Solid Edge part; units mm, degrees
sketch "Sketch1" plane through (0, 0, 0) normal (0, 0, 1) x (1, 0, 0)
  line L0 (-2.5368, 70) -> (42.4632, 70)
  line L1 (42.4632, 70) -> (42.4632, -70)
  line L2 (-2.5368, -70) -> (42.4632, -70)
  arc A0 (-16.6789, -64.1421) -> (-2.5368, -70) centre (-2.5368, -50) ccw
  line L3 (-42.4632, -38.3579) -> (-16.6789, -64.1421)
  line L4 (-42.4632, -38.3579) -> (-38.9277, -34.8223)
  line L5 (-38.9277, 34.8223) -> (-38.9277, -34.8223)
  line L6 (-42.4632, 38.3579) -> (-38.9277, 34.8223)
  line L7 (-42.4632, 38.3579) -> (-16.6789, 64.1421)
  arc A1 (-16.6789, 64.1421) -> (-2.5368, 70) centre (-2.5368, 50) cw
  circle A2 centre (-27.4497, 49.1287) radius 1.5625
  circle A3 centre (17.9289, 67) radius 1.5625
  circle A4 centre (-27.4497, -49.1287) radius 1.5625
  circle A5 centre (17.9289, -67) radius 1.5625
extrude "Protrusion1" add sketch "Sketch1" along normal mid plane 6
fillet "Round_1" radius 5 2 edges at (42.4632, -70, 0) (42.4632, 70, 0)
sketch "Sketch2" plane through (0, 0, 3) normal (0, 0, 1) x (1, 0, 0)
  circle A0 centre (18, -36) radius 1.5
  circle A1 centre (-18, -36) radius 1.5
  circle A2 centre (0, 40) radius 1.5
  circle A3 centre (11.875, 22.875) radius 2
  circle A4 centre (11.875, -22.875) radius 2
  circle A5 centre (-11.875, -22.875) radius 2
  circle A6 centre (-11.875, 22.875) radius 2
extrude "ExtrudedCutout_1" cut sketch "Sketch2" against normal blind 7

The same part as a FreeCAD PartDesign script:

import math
import FreeCAD as App
import Part
import Sketcher


def edges_at(feature, points):
    """Names of the edges that pass closest to the given points."""
    edges = feature.Shape.Edges
    near = lambda p: min(range(len(edges)), key=lambda i: edges[i].distToShape(Part.Vertex(*p))[0])
    return sorted({f"Edge{near(p) + 1}" for p in points})

doc = App.newDocument("Part")
params = doc.addObject("Spreadsheet::Sheet", "Params")
for row, (alias, value) in enumerate([
    ("sketch1_radius", "20 mm"),
    ("sketch1_width", "45 mm"),
    ("sketch1_height", "140 mm"),
    ("sketch1_length", "5 mm"),
    ("pad1_length", "6 mm"),
    ("fillet_radius", "5 mm"),
    ("sketch2_diameter", "3 mm"),
    ("sketch2_diameter2", "4 mm"),
    ("pocket1_length", "7 mm"),
], start=1):
    params.set(f"A{row}", alias)
    params.set(f"B{row}", "=" + value)
    params.setAlias(f"B{row}", alias)

body = doc.addObject("PartDesign::Body", "Body")

# Sketch on XY plane
sketch1 = body.newObject("Sketcher::SketchObject", "Sketch")
sketch1.AttachmentSupport = (doc.getObject("XY_Plane"), [""])
sketch1.MapMode = "FlatFace"
sketch1.addGeometry(Part.LineSegment(App.Vector(42.4632, 70, 0), App.Vector(-2.5368, 70, 0)), False)
sketch1.addGeometry(Part.ArcOfCircle(Part.Circle(App.Vector(-2.5368, 50, 0), App.Vector(0, 0, 1), 19.99995), math.radians(90), math.radians(135)), False)
sketch1.addGeometry(Part.LineSegment(App.Vector(-16.6789, 64.1421, 0), App.Vector(-42.4632, 38.3579, 0)), False)
sketch1.addGeometry(Part.LineSegment(App.Vector(-42.4632, 38.3579, 0), App.Vector(-38.9277, 34.8223, 0)), False)
sketch1.addGeometry(Part.LineSegment(App.Vector(-38.9277, 34.8223, 0), App.Vector(-38.9277, -34.8223, 0)), False)
sketch1.addGeometry(Part.LineSegment(App.Vector(-38.9277, -34.8223, 0), App.Vector(-42.4632, -38.3579, 0)), False)
sketch1.addGeometry(Part.LineSegment(App.Vector(-42.4632, -38.3579, 0), App.Vector(-16.6789, -64.1421, 0)), False)
sketch1.addGeometry(Part.ArcOfCircle(Part.Circle(App.Vector(-2.5368, -50, 0), App.Vector(0, 0, 1), 19.99995), math.radians(-135), math.radians(-90)), False)
sketch1.addGeometry(Part.LineSegment(App.Vector(-2.5368, -70, 0), App.Vector(42.4632, -70, 0)), False)
sketch1.addGeometry(Part.LineSegment(App.Vector(42.4632, -70, 0), App.Vector(42.4632, 70, 0)), False)
sketch1.addGeometry(Part.Circle(App.Vector(-27.4497, -49.1287, 0), App.Vector(0, 0, 1), 1.5625), False)
sketch1.addGeometry(Part.Circle(App.Vector(17.9289, -67, 0), App.Vector(0, 0, 1), 1.5625), False)
sketch1.addGeometry(Part.Circle(App.Vector(-27.4497, 49.1287, 0), App.Vector(0, 0, 1), 1.5625), False)
sketch1.addGeometry(Part.Circle(App.Vector(17.9289, 67, 0), App.Vector(0, 0, 1), 1.5625), False)
sketch1.addConstraint(Sketcher.Constraint("Tangent", 0, 2, 1, 1))
sketch1.addConstraint(Sketcher.Constraint("Tangent", 1, 2, 2, 1))
sketch1.addConstraint(Sketcher.Constraint("Coincident", 2, 2, 3, 1))
sketch1.addConstraint(Sketcher.Constraint("Coincident", 3, 2, 4, 1))
sketch1.addConstraint(Sketcher.Constraint("Coincident", 4, 2, 5, 1))
sketch1.addConstraint(Sketcher.Constraint("Coincident", 5, 2, 6, 1))
sketch1.addConstraint(Sketcher.Constraint("Tangent", 6, 2, 7, 1))
sketch1.addConstraint(Sketcher.Constraint("Tangent", 7, 2, 8, 1))
sketch1.addConstraint(Sketcher.Constraint("Coincident", 8, 2, 9, 1))
sketch1.addConstraint(Sketcher.Constraint("Coincident", 9, 2, 0, 1))
sketch1.addConstraint(Sketcher.Constraint("Horizontal", 0))
sketch1.addConstraint(Sketcher.Constraint("Vertical", 4))
sketch1.addConstraint(Sketcher.Constraint("Horizontal", 8))
sketch1.addConstraint(Sketcher.Constraint("Vertical", 9))
sketch1.addConstraint(Sketcher.Constraint("Equal", 1, 7))
sketch1.addConstraint(Sketcher.Constraint("Equal", 10, 11))
sketch1.addConstraint(Sketcher.Constraint("Equal", 11, 12))
sketch1.addConstraint(Sketcher.Constraint("Equal", 12, 13))
sketch1.addConstraint(Sketcher.Constraint("Symmetric", 1, 3, 7, 3, -1))
sketch1.addConstraint(Sketcher.Constraint("Symmetric", 10, 3, 12, 3, -1))
sketch1.addConstraint(Sketcher.Constraint("Symmetric", 11, 3, 13, 3, -1))
sketch1.addConstraint(Sketcher.Constraint("Symmetric", 2, 2, 5, 2, -1))
sketch1.addConstraint(Sketcher.Constraint("Perpendicular", 2, 3))
sketch1.addConstraint(Sketcher.Constraint("Perpendicular", 3, 5))
sketch1.addConstraint(Sketcher.Constraint("Perpendicular", 5, 6))
sketch1.addConstraint(Sketcher.Constraint("Radius", 1, 20.0))
sketch1.addConstraint(Sketcher.Constraint("DistanceX", 0, 2, 0, 1, 45.0))
sketch1.addConstraint(Sketcher.Constraint("DistanceY", 9, 1, 9, 2, 140.0))
sketch1.addConstraint(Sketcher.Constraint("Distance", 3, 5.0))
sketch1.addConstraint(Sketcher.Constraint("Diameter", 10, 3.125))
sketch1.addConstraint(Sketcher.Constraint("DistanceY", 11, 3, -1, 1, 67.0))
sketch1.addConstraint(Sketcher.Constraint("DistanceY", 4, 2, 4, 1, 69.6446))
sketch1.addConstraint(Sketcher.Constraint("DistanceX", -1, 1, 11, 3, 17.929))
sketch1.addConstraint(Sketcher.Constraint("DistanceX", 1, 2, -1, 1, 16.679))
sketch1.addConstraint(Sketcher.Constraint("DistanceX", 10, 3, 7, 3, 24.913))
sketch1.addConstraint(Sketcher.Constraint("DistanceY", 10, 3, -1, 1, 49.1287))
sketch1.setExpression("Constraints[25]", "Params.sketch1_radius")
sketch1.setExpression("Constraints[26]", "Params.sketch1_width")
sketch1.setExpression("Constraints[27]", "Params.sketch1_height")
sketch1.setExpression("Constraints[28]", "Params.sketch1_length")
pad1 = body.newObject("PartDesign::Pad", "Pad")
pad1.Profile = sketch1
pad1.setExpression("Length", "Params.pad1_length")
pad1.Midplane = True
doc.recompute()

fillet = body.newObject("PartDesign::Fillet", "Fillet")
fillet.Base = (pad1, edges_at(pad1, [(42.463, -70, 0), (42.463, 70, 0)]))
fillet.setExpression("Radius", "Params.fillet_radius")

# Sketch on XY plane
sketch2 = body.newObject("Sketcher::SketchObject", "Sketch001")
sketch2.AttachmentSupport = (doc.getObject("XY_Plane"), [""])
sketch2.MapMode = "FlatFace"
sketch2.AttachmentOffset = App.Placement(App.Vector(0, 0, 3), App.Rotation())
sketch2.addGeometry(Part.Circle(App.Vector(18, -36, 0), App.Vector(0, 0, 1), 1.5), False)
sketch2.addGeometry(Part.Circle(App.Vector(-18, -36, 0), App.Vector(0, 0, 1), 1.5), False)
sketch2.addGeometry(Part.Circle(App.Vector(0, 40, 0), App.Vector(0, 0, 1), 1.5), False)
sketch2.addGeometry(Part.Circle(App.Vector(11.875, 22.875, 0), App.Vector(0, 0, 1), 2), False)
sketch2.addGeometry(Part.Circle(App.Vector(11.875, -22.875, 0), App.Vector(0, 0, 1), 2), False)
sketch2.addGeometry(Part.Circle(App.Vector(-11.875, -22.875, 0), App.Vector(0, 0, 1), 2), False)
sketch2.addGeometry(Part.Circle(App.Vector(-11.875, 22.875, 0), App.Vector(0, 0, 1), 2), False)
sketch2.addConstraint(Sketcher.Constraint("Equal", 0, 1))
sketch2.addConstraint(Sketcher.Constraint("Equal", 1, 2))
sketch2.addConstraint(Sketcher.Constraint("Equal", 3, 4))
sketch2.addConstraint(Sketcher.Constraint("Equal", 4, 5))
sketch2.addConstraint(Sketcher.Constraint("Equal", 5, 6))
sketch2.addConstraint(Sketcher.Constraint("Symmetric", 3, 3, 5, 3, -1, 1))
sketch2.addConstraint(Sketcher.Constraint("Symmetric", 4, 3, 6, 3, -1, 1))
sketch2.addConstraint(Sketcher.Constraint("Symmetric", 0, 3, 1, 3, -2))
sketch2.addConstraint(Sketcher.Constraint("Symmetric", 4, 3, 5, 3, -2))
sketch2.addConstraint(Sketcher.Constraint("PointOnObject", 2, 3, -2))
sketch2.addConstraint(Sketcher.Constraint("Diameter", 0, 3.0))
sketch2.addConstraint(Sketcher.Constraint("Diameter", 3, 4.0))
sketch2.addConstraint(Sketcher.Constraint("DistanceX", -1, 1, 0, 3, 18.0))
sketch2.addConstraint(Sketcher.Constraint("DistanceY", 0, 3, -1, 1, 36.0))
sketch2.addConstraint(Sketcher.Constraint("DistanceY", -1, 1, 2, 3, 40.0))
sketch2.addConstraint(Sketcher.Constraint("DistanceY", 4, 3, 3, 3, 45.75))
sketch2.addConstraint(Sketcher.Constraint("DistanceX", 5, 3, 4, 3, 23.75))
sketch2.setExpression("Constraints[10]", "Params.sketch2_diameter")
sketch2.setExpression("Constraints[11]", "Params.sketch2_diameter2")
pocket1 = body.newObject("PartDesign::Pocket", "Pocket")
pocket1.Profile = sketch2
pocket1.setExpression("Length", "Params.pocket1_length")

doc.recompute()
